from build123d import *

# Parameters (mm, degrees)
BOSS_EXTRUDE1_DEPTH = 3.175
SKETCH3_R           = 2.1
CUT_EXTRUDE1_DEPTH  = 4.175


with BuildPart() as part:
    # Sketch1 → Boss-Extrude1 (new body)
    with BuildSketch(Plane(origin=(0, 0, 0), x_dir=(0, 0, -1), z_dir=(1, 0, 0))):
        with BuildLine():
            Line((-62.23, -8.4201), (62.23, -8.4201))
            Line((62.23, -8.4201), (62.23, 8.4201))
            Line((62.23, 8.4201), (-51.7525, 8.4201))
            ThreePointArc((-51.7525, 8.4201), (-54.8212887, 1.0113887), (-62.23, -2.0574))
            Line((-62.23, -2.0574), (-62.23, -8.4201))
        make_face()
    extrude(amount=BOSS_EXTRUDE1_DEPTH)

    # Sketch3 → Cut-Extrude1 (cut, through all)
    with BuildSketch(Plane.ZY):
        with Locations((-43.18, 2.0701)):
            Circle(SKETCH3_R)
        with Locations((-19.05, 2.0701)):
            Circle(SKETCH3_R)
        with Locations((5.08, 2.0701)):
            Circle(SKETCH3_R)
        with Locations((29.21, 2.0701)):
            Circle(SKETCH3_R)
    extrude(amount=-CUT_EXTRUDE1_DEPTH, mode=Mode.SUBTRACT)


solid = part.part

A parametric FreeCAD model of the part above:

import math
import FreeCAD as App
import Part
import Sketcher
from FreeCAD import Vector
Q = App.Units.Quantity

doc = App.newDocument("Part")
body = doc.addObject("PartDesign::Body", "Body")

sketch1 = body.newObject("Sketcher::SketchObject", "Sketch")
sketch1.AttachmentSupport = (doc.getObject("YZ_Plane"), [""])
sketch1.MapMode = "FlatFace"
sketch1.addGeometry([
    Part.LineSegment(Vector(-8.4201, 62.23, 0), Vector(-8.4201, -62.23, 0)),
    Part.LineSegment(Vector(-8.4201, -62.23, 0), Vector(8.4201, -62.23, 0)),
    Part.LineSegment(Vector(8.4201, -62.23, 0), Vector(8.4201, 51.7525, 0)),
    Part.ArcOfCircle(Part.Circle(Vector(8.4201, 62.23, 0), Vector(0, 0, 1), 10.4775), math.radians(180), math.radians(270)),
    Part.LineSegment(Vector(-2.0574, 62.23, 0), Vector(-8.4201, 62.23, 0)),
], False)
sketch1.addConstraint([
    Sketcher.Constraint("Coincident", 0, 2, 1, 1),
    Sketcher.Constraint("Coincident", 1, 2, 2, 1),
    Sketcher.Constraint("Coincident", 2, 2, 3, 2),
    Sketcher.Constraint("Coincident", 3, 1, 4, 1),
    Sketcher.Constraint("Coincident", 4, 2, 0, 1),
    Sketcher.Constraint("Vertical", 0),
    Sketcher.Constraint("Horizontal", 1),
    Sketcher.Constraint("Vertical", 2),
    Sketcher.Constraint("Horizontal", 4),
    Sketcher.Constraint("Symmetric", 1, 2, 4, 2, -1, 1),
    Sketcher.Constraint("Vertical", 3, 3, 1, 2),
    Sketcher.Constraint("DistanceY", 0, 2, 0, 1, Q("4.9 in")),
    Sketcher.Constraint("Radius", 3, Q("0.4125 in")),
    Sketcher.Constraint("DistanceY", 0, 2, 3, 3, Q("4.9 in")),
    Sketcher.Constraint("DistanceX", 1, 1, 1, 2, Q("0.663 in")),
])
pad1 = body.newObject("PartDesign::Pad", "Pad")
pad1.Profile = sketch1
pad1.Length = Q("0.125 in")

sketch2 = body.newObject("Sketcher::SketchObject", "Sketch001")
sketch2.AttachmentSupport = (doc.getObject("YZ_Plane"), [""])
sketch2.MapMode = "FlatFace"
sketch2.addGeometry([
    Part.Circle(Vector(2.0701, -43.18, 0), Vector(0, 0, 1), 2.1),
    Part.Circle(Vector(2.0701, -19.05, 0), Vector(0, 0, 1), 2.1),
    Part.Circle(Vector(2.0701, 5.08, 0), Vector(0, 0, 1), 2.1),
    Part.Circle(Vector(2.0701, 29.21, 0), Vector(0, 0, 1), 2.1),
], False)
sketch2.addConstraint([
    Sketcher.Constraint("Equal", 0, 1),
    Sketcher.Constraint("Equal", 1, 2),
    Sketcher.Constraint("Equal", 2, 3),
    Sketcher.Constraint("Vertical", 0, 3, 1, 3),
    Sketcher.Constraint("Vertical", 1, 3, 2, 3),
    Sketcher.Constraint("Vertical", 2, 3, 3, 3),
    Sketcher.Constraint("DistanceY", 0, 3, -1, 1, Q("1.7 in")),
    Sketcher.Constraint("DistanceY", -1, 1, 2, 3, Q("0.2 in")),
    Sketcher.Constraint("DistanceY", 1, 3, 3, 3, Q("1.9 in")),
    Sketcher.Constraint("Diameter", 0, Q("4.2 mm")),
    Sketcher.Constraint("DistanceY", 1, 3, -1, 1, Q("0.75 in")),
    Sketcher.Constraint("DistanceX", -1, 1, 0, 3, Q("0.0815 in")),
])
pocket1 = body.newObject("PartDesign::Pocket", "Pocket")
pocket1.Profile = sketch2
pocket1.Type = "ThroughAll"
pocket1.Reversed = True

doc.recompute()
